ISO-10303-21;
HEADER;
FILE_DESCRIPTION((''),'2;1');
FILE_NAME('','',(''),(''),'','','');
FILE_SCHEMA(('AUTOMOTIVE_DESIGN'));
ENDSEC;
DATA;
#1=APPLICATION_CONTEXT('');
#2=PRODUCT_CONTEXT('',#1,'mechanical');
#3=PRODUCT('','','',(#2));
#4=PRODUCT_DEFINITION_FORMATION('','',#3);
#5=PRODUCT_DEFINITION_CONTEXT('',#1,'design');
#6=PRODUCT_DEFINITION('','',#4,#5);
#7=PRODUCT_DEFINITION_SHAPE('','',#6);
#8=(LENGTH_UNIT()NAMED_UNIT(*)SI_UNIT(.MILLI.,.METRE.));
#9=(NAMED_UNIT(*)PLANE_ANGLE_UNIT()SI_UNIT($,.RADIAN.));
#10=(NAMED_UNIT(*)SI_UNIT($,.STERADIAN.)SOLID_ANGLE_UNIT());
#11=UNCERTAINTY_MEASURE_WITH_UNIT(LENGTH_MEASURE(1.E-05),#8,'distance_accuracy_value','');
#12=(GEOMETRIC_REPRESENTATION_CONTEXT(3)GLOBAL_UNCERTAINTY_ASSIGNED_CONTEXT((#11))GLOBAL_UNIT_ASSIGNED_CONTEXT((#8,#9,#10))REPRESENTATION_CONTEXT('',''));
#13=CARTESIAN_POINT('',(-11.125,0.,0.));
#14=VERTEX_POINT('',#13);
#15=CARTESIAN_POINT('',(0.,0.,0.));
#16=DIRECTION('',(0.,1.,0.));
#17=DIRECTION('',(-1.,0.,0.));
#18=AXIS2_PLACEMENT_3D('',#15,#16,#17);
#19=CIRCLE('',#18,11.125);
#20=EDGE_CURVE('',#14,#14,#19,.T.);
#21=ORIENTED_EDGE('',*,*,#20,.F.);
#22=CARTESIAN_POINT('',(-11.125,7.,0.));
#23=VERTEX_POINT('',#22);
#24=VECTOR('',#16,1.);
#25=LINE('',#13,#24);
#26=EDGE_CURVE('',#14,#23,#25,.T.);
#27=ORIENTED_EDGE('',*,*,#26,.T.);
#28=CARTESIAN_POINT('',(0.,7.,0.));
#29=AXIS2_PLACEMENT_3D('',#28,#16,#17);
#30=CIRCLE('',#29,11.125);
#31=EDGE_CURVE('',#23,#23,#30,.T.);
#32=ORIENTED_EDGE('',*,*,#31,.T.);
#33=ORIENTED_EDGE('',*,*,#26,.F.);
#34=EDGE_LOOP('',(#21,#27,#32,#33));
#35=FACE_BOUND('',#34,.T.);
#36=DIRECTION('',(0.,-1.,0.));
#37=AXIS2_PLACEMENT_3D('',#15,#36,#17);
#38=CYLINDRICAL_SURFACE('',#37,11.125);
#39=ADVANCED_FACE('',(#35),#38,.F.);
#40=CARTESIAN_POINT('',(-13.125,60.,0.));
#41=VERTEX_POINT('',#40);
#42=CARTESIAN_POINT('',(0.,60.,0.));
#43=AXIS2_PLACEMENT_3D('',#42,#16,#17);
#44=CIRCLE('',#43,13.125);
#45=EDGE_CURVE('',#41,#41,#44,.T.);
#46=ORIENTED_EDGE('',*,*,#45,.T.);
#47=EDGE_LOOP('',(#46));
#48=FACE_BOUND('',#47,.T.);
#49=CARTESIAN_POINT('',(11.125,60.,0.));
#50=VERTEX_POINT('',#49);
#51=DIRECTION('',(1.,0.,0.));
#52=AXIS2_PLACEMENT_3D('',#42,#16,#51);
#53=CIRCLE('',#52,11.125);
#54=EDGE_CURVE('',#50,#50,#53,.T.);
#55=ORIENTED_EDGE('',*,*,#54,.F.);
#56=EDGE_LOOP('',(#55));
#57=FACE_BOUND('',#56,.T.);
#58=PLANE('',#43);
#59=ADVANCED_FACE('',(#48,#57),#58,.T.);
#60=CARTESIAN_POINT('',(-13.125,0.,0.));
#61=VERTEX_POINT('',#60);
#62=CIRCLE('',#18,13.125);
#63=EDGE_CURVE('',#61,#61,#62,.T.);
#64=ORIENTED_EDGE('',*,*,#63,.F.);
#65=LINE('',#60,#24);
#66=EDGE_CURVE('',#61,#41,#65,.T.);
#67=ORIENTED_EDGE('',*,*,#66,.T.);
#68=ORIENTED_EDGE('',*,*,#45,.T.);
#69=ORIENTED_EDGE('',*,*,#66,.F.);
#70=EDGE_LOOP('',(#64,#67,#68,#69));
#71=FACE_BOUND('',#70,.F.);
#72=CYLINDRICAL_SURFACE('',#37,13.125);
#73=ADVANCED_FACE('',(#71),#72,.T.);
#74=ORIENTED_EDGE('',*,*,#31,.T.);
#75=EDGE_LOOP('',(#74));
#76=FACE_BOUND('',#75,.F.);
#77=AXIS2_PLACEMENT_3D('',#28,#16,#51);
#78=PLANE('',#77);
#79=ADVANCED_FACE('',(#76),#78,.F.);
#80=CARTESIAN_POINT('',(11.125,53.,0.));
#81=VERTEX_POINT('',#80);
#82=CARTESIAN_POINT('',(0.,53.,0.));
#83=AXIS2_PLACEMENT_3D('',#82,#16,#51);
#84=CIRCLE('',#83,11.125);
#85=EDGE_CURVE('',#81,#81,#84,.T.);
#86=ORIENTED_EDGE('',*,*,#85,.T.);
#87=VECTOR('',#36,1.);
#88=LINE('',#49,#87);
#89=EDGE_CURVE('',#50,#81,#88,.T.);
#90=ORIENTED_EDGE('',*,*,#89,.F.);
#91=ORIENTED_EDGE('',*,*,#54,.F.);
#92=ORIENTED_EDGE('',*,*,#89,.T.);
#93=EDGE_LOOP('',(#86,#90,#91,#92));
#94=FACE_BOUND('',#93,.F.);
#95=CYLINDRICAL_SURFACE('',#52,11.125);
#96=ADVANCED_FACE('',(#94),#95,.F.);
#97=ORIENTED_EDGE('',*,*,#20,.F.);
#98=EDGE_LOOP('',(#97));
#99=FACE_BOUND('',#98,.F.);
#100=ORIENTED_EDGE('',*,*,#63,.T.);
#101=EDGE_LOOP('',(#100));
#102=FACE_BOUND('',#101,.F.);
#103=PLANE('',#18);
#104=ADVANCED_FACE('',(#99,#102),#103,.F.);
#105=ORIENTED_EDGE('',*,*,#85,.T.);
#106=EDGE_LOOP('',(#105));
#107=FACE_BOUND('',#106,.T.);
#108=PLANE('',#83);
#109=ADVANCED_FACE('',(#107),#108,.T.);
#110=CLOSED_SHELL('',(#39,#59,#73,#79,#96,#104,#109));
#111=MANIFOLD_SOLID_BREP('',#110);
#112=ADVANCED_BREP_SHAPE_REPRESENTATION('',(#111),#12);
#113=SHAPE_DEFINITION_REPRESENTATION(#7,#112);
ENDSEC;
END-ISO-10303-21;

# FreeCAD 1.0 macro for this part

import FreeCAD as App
import Part
import Sketcher
from FreeCAD import Vector
Q = App.Units.Quantity

doc = App.newDocument("Part")
body = doc.addObject("PartDesign::Body", "Body")

sketch1 = body.newObject("Sketcher::SketchObject", "Sketch")
sketch1.AttachmentSupport = (doc.getObject("XZ_Plane"), [""])
sketch1.MapMode = "FlatFace"
sketch1.addGeometry([
    Part.Circle(Vector(0, 0, 0), Vector(0, 0, 1), 13.125),
    Part.Circle(Vector(0, 0, 0), Vector(0, 0, 1), 11.125),
], False)
sketch1.addConstraint([
    Sketcher.Constraint("Coincident", 0, 3, -1, 1),
    Sketcher.Constraint("Coincident", 1, 3, -1, 1),
    Sketcher.Constraint("Diameter", 0, Q("26.25 mm")),
    Sketcher.Constraint("Diameter", 1, Q("22.25 mm")),
])
pad1 = body.newObject("PartDesign::Pad", "Pad")
pad1.Profile = sketch1
pad1.Length = 60
pad1.Reversed = True

sketch2 = body.newObject("Sketcher::SketchObject", "Sketch001")
sketch2.AttachmentSupport = (doc.getObject("XZ_Plane"), [""])
sketch2.MapMode = "FlatFace"
sketch2.AttachmentOffset = App.Placement(Vector(0, 0, -60), App.Rotation())
sketch2.addGeometry(Part.Circle(Vector(0, 0, 0), Vector(0, 0, 1), 11.125), False)
sketch2.addConstraint([
    Sketcher.Constraint("Coincident", 0, 3, -1, 1),
    Sketcher.Constraint("Diameter", 0, Q("22.25 mm")),
])
pad2 = body.newObject("PartDesign::Pad", "Pad001")
pad2.Profile = sketch2
pad2.Length = 53

sketch3 = body.newObject("Sketcher::SketchObject", "Sketch002")
sketch3.AttachmentSupport = (doc.getObject("XZ_Plane"), [""])
sketch3.MapMode = "FlatFace"
sketch3.AttachmentOffset = App.Placement(Vector(0, 0, -60), App.Rotation())
sketch3.addGeometry(Part.Circle(Vector(0, 0, 0), Vector(0, 0, 1), 11.125), False)
sketch3.addConstraint([
    Sketcher.Constraint("Coincident", 0, 3, -1, 1),
    Sketcher.Constraint("Diameter", 0, Q("22.25 mm")),
])
pocket1 = body.newObject("PartDesign::Pocket", "Pocket")
pocket1.Profile = sketch3
pocket1.Length = 7
pocket1.Reversed = True

doc.recompute()
